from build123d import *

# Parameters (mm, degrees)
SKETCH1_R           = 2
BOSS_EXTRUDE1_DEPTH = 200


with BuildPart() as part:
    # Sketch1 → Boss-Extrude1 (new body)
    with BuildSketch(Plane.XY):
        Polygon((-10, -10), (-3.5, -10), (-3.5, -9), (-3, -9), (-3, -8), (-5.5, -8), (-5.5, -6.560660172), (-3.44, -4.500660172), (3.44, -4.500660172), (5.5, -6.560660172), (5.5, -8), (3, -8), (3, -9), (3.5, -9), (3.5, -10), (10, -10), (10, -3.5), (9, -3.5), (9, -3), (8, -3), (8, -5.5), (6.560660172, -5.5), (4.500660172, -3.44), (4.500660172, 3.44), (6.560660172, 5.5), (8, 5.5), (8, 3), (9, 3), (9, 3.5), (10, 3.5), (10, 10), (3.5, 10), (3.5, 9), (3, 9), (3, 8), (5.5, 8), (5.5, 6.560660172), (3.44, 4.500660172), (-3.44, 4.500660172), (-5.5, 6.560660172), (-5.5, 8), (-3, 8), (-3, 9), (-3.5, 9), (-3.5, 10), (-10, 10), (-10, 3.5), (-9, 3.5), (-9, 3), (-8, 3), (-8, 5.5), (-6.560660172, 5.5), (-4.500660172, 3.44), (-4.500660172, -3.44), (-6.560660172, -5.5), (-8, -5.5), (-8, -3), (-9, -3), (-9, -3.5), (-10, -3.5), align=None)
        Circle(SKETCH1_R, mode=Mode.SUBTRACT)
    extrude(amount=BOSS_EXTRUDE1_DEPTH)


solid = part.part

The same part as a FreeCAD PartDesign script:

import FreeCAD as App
import Part
import Sketcher
from FreeCAD import Vector

doc = App.newDocument("Part")
params = doc.addObject("Spreadsheet::Sheet", "Params")
for row, (alias, value) in enumerate([
    ("sketch1_diameter", "4 mm"),
    ("sketch1_width", "1 mm"),
    ("sketch1_width2", "6.5 mm"),
    ("sketch1_width3", "0.5 mm"),
    ("sketch1_width4", "2.5 mm"),
    ("pad1_length", "200 mm"),
], start=1):
    params.set(f"A{row}", alias)
    params.set(f"B{row}", "=" + value)
    params.setAlias(f"B{row}", alias)

body = doc.addObject("PartDesign::Body", "Body")

sketch1 = body.newObject("Sketcher::SketchObject", "Sketch")
sketch1.AttachmentSupport = (doc.getObject("XY_Plane"), [""])
sketch1.MapMode = "FlatFace"
sketch1.addGeometry([
    Part.LineSegment(Vector(-10, -10, 0), Vector(-3.5, -10, 0)),
    Part.LineSegment(Vector(-3.5, -10, 0), Vector(-3.5, -9, 0)),
    Part.LineSegment(Vector(-3.5, -9, 0), Vector(-3, -9, 0)),
    Part.LineSegment(Vector(-3, -9, 0), Vector(-3, -8, 0)),
    Part.LineSegment(Vector(-3, -8, 0), Vector(-5.5, -8, 0)),
    Part.LineSegment(Vector(-5.5, -8, 0), Vector(-5.5, -6.6, 0)),
    Part.LineSegment(Vector(-5.5, -6.6, 0), Vector(-3.4, -4.5, 0)),
    Part.LineSegment(Vector(-3.4, -4.5, 0), Vector(3.4, -4.5, 0)),
    Part.LineSegment(Vector(3.4, -4.5, 0), Vector(5.5, -6.6, 0)),
    Part.LineSegment(Vector(5.5, -6.6, 0), Vector(5.5, -8, 0)),
    Part.LineSegment(Vector(5.5, -8, 0), Vector(3, -8, 0)),
    Part.LineSegment(Vector(3, -8, 0), Vector(3, -9, 0)),
    Part.LineSegment(Vector(3, -9, 0), Vector(3.5, -9, 0)),
    Part.LineSegment(Vector(3.5, -9, 0), Vector(3.5, -10, 0)),
    Part.LineSegment(Vector(3.5, -10, 0), Vector(10, -10, 0)),
    Part.LineSegment(Vector(10, -10, 0), Vector(10, -3.5, 0)),
    Part.LineSegment(Vector(10, -3.5, 0), Vector(9, -3.5, 0)),
    Part.LineSegment(Vector(9, -3.5, 0), Vector(9, -3, 0)),
    Part.LineSegment(Vector(9, -3, 0), Vector(8, -3, 0)),
    Part.LineSegment(Vector(8, -3, 0), Vector(8, -5.5, 0)),
    Part.LineSegment(Vector(8, -5.5, 0), Vector(6.6, -5.5, 0)),
    Part.LineSegment(Vector(6.6, -5.5, 0), Vector(4.5, -3.4, 0)),
    Part.LineSegment(Vector(4.5, -3.4, 0), Vector(4.5, 3.4, 0)),
    Part.LineSegment(Vector(4.5, 3.4, 0), Vector(6.6, 5.5, 0)),
    Part.LineSegment(Vector(6.6, 5.5, 0), Vector(8, 5.5, 0)),
    Part.LineSegment(Vector(8, 5.5, 0), Vector(8, 3, 0)),
    Part.LineSegment(Vector(8, 3, 0), Vector(9, 3, 0)),
    Part.LineSegment(Vector(9, 3, 0), Vector(9, 3.5, 0)),
    Part.LineSegment(Vector(9, 3.5, 0), Vector(10, 3.5, 0)),
    Part.LineSegment(Vector(10, 3.5, 0), Vector(10, 10, 0)),
    Part.LineSegment(Vector(10, 10, 0), Vector(3.5, 10, 0)),
    Part.LineSegment(Vector(3.5, 10, 0), Vector(3.5, 9, 0)),
    Part.LineSegment(Vector(3.5, 9, 0), Vector(3, 9, 0)),
    Part.LineSegment(Vector(3, 9, 0), Vector(3, 8, 0)),
    Part.LineSegment(Vector(3, 8, 0), Vector(5.5, 8, 0)),
    Part.LineSegment(Vector(5.5, 8, 0), Vector(5.5, 6.6, 0)),
    Part.LineSegment(Vector(5.5, 6.6, 0), Vector(3.4, 4.5, 0)),
    Part.LineSegment(Vector(3.4, 4.5, 0), Vector(-3.4, 4.5, 0)),
    Part.LineSegment(Vector(-3.4, 4.5, 0), Vector(-5.5, 6.6, 0)),
    Part.LineSegment(Vector(-5.5, 6.6, 0), Vector(-5.5, 8, 0)),
    Part.LineSegment(Vector(-5.5, 8, 0), Vector(-3, 8, 0)),
    Part.LineSegment(Vector(-3, 8, 0), Vector(-3, 9, 0)),
    Part.LineSegment(Vector(-3, 9, 0), Vector(-3.5, 9, 0)),
    Part.LineSegment(Vector(-3.5, 9, 0), Vector(-3.5, 10, 0)),
    Part.LineSegment(Vector(-3.5, 10, 0), Vector(-10, 10, 0)),
    Part.LineSegment(Vector(-10, 10, 0), Vector(-10, 3.5, 0)),
    Part.LineSegment(Vector(-10, 3.5, 0), Vector(-9, 3.5, 0)),
    Part.LineSegment(Vector(-9, 3.5, 0), Vector(-9, 3, 0)),
    Part.LineSegment(Vector(-9, 3, 0), Vector(-8, 3, 0)),
    Part.LineSegment(Vector(-8, 3, 0), Vector(-8, 5.5, 0)),
    Part.LineSegment(Vector(-8, 5.5, 0), Vector(-6.6, 5.5, 0)),
    Part.LineSegment(Vector(-6.6, 5.5, 0), Vector(-4.5, 3.4, 0)),
    Part.LineSegment(Vector(-4.5, 3.4, 0), Vector(-4.5, -3.4, 0)),
    Part.LineSegment(Vector(-4.5, -3.4, 0), Vector(-6.6, -5.5, 0)),
    Part.LineSegment(Vector(-6.6, -5.5, 0), Vector(-8, -5.5, 0)),
    Part.LineSegment(Vector(-8, -5.5, 0), Vector(-8, -3, 0)),
    Part.LineSegment(Vector(-8, -3, 0), Vector(-9, -3, 0)),
    Part.LineSegment(Vector(-9, -3, 0), Vector(-9, -3.5, 0)),
    Part.LineSegment(Vector(-9, -3.5, 0), Vector(-10, -3.5, 0)),
    Part.LineSegment(Vector(-10, -3.5, 0), Vector(-10, -10, 0)),
    Part.Circle(Vector(0, 0, 0), Vector(0, 0, 1), 2),
], False)
sketch1.addConstraint([
    Sketcher.Constraint("Coincident", 0, 2, 1, 1),
    Sketcher.Constraint("Coincident", 1, 2, 2, 1),
    Sketcher.Constraint("Coincident", 2, 2, 3, 1),
    Sketcher.Constraint("Coincident", 3, 2, 4, 1),
    Sketcher.Constraint("Coincident", 4, 2, 5, 1),
    Sketcher.Constraint("Coincident", 5, 2, 6, 1),
    Sketcher.Constraint("Coincident", 6, 2, 7, 1),
    Sketcher.Constraint("Coincident", 7, 2, 8, 1),
    Sketcher.Constraint("Coincident", 8, 2, 9, 1),
    Sketcher.Constraint("Coincident", 9, 2, 10, 1),
    Sketcher.Constraint("Coincident", 10, 2, 11, 1),
    Sketcher.Constraint("Coincident", 11, 2, 12, 1),
    Sketcher.Constraint("Coincident", 12, 2, 13, 1),
    Sketcher.Constraint("Coincident", 13, 2, 14, 1),
    Sketcher.Constraint("Coincident", 14, 2, 15, 1),
    Sketcher.Constraint("Coincident", 15, 2, 16, 1),
    Sketcher.Constraint("Coincident", 16, 2, 17, 1),
    Sketcher.Constraint("Coincident", 17, 2, 18, 1),
    Sketcher.Constraint("Coincident", 18, 2, 19, 1),
    Sketcher.Constraint("Coincident", 19, 2, 20, 1),
    Sketcher.Constraint("Coincident", 20, 2, 21, 1),
    Sketcher.Constraint("Coincident", 21, 2, 22, 1),
    Sketcher.Constraint("Coincident", 22, 2, 23, 1),
    Sketcher.Constraint("Coincident", 23, 2, 24, 1),
    Sketcher.Constraint("Coincident", 24, 2, 25, 1),
    Sketcher.Constraint("Coincident", 25, 2, 26, 1),
    Sketcher.Constraint("Coincident", 26, 2, 27, 1),
    Sketcher.Constraint("Coincident", 27, 2, 28, 1),
    Sketcher.Constraint("Coincident", 28, 2, 29, 1),
    Sketcher.Constraint("Coincident", 29, 2, 30, 1),
    Sketcher.Constraint("Coincident", 30, 2, 31, 1),
    Sketcher.Constraint("Coincident", 31, 2, 32, 1),
    Sketcher.Constraint("Coincident", 32, 2, 33, 1),
    Sketcher.Constraint("Coincident", 33, 2, 34, 1),
    Sketcher.Constraint("Coincident", 34, 2, 35, 1),
    Sketcher.Constraint("Coincident", 35, 2, 36, 1),
    Sketcher.Constraint("Coincident", 36, 2, 37, 1),
    Sketcher.Constraint("Coincident", 37, 2, 38, 1),
    Sketcher.Constraint("Coincident", 38, 2, 39, 1),
    Sketcher.Constraint("Coincident", 39, 2, 40, 1),
    Sketcher.Constraint("Coincident", 40, 2, 41, 1),
    Sketcher.Constraint("Coincident", 41, 2, 42, 1),
    Sketcher.Constraint("Coincident", 42, 2, 43, 1),
    Sketcher.Constraint("Coincident", 43, 2, 44, 1),
    Sketcher.Constraint("Coincident", 44, 2, 45, 1),
    Sketcher.Constraint("Coincident", 45, 2, 46, 1),
    Sketcher.Constraint("Coincident", 46, 2, 47, 1),
    Sketcher.Constraint("Coincident", 47, 2, 48, 1),
    Sketcher.Constraint("Coincident", 48, 2, 49, 1),
    Sketcher.Constraint("Coincident", 49, 2, 50, 1),
    Sketcher.Constraint("Coincident", 50, 2, 51, 1),
    Sketcher.Constraint("Coincident", 51, 2, 52, 1),
    Sketcher.Constraint("Coincident", 52, 2, 53, 1),
    Sketcher.Constraint("Coincident", 53, 2, 54, 1),
    Sketcher.Constraint("Coincident", 54, 2, 55, 1),
    Sketcher.Constraint("Coincident", 55, 2, 56, 1),
    Sketcher.Constraint("Coincident", 56, 2, 57, 1),
    Sketcher.Constraint("Coincident", 57, 2, 58, 1),
    Sketcher.Constraint("Coincident", 58, 2, 59, 1),
    Sketcher.Constraint("Coincident", 59, 2, 0, 1),
    Sketcher.Constraint("Horizontal", 0),
    Sketcher.Constraint("Vertical", 1),
    Sketcher.Constraint("Horizontal", 2),
    Sketcher.Constraint("Vertical", 3),
    Sketcher.Constraint("Horizontal", 4),
    Sketcher.Constraint("Vertical", 5),
    Sketcher.Constraint("Horizontal", 7),
    Sketcher.Constraint("Vertical", 9),
    Sketcher.Constraint("Horizontal", 10),
    Sketcher.Constraint("Vertical", 11),
    Sketcher.Constraint("Horizontal", 12),
    Sketcher.Constraint("Vertical", 13),
    Sketcher.Constraint("Horizontal", 14),
    Sketcher.Constraint("Vertical", 15),
    Sketcher.Constraint("Horizontal", 16),
    Sketcher.Constraint("Vertical", 17),
    Sketcher.Constraint("Horizontal", 18),
    Sketcher.Constraint("Vertical", 19),
    Sketcher.Constraint("Horizontal", 20),
    Sketcher.Constraint("Vertical", 22),
    Sketcher.Constraint("Horizontal", 24),
    Sketcher.Constraint("Vertical", 25),
    Sketcher.Constraint("Horizontal", 26),
    Sketcher.Constraint("Vertical", 27),
    Sketcher.Constraint("Horizontal", 28),
    Sketcher.Constraint("Vertical", 29),
    Sketcher.Constraint("Horizontal", 30),
    Sketcher.Constraint("Vertical", 31),
    Sketcher.Constraint("Horizontal", 32),
    Sketcher.Constraint("Vertical", 33),
    Sketcher.Constraint("Horizontal", 34),
    Sketcher.Constraint("Vertical", 35),
    Sketcher.Constraint("Horizontal", 37),
    Sketcher.Constraint("Vertical", 39),
    Sketcher.Constraint("Horizontal", 40),
    Sketcher.Constraint("Vertical", 41),
    Sketcher.Constraint("Horizontal", 42),
    Sketcher.Constraint("Vertical", 43),
    Sketcher.Constraint("Horizontal", 44),
    Sketcher.Constraint("Vertical", 45),
    Sketcher.Constraint("Horizontal", 46),
    Sketcher.Constraint("Vertical", 47),
    Sketcher.Constraint("Horizontal", 48),
    Sketcher.Constraint("Vertical", 49),
    Sketcher.Constraint("Horizontal", 50),
    Sketcher.Constraint("Vertical", 52),
    Sketcher.Constraint("Horizontal", 54),
    Sketcher.Constraint("Vertical", 55),
    Sketcher.Constraint("Horizontal", 56),
    Sketcher.Constraint("Vertical", 57),
    Sketcher.Constraint("Horizontal", 58),
    Sketcher.Constraint("Vertical", 59),
    Sketcher.Constraint("Coincident", 60, 3, -1, 1),
    Sketcher.Constraint("Symmetric", 0, 2, 30, 2, -1, 1),
    Sketcher.Constraint("Symmetric", 2, 2, 32, 2, -1, 1),
    Sketcher.Constraint("Symmetric", 4, 2, 34, 2, -1, 1),
    Sketcher.Constraint("Symmetric", 6, 2, 36, 2, -1, 1),
    Sketcher.Constraint("Symmetric", 8, 2, 38, 2, -1, 1),
    Sketcher.Constraint("Symmetric", 10, 2, 40, 2, -1, 1),
    Sketcher.Constraint("Symmetric", 12, 2, 42, 2, -1, 1),
    Sketcher.Constraint("Symmetric", 14, 2, 44, 2, -1, 1),
    Sketcher.Constraint("Symmetric", 16, 2, 46, 2, -1, 1),
    Sketcher.Constraint("Symmetric", 18, 2, 48, 2, -1, 1),
    Sketcher.Constraint("Symmetric", 20, 2, 50, 2, -1, 1),
    Sketcher.Constraint("Symmetric", 21, 2, 51, 2, -1, 1),
    Sketcher.Constraint("Symmetric", 23, 2, 53, 2, -1, 1),
    Sketcher.Constraint("Symmetric", 25, 2, 55, 2, -1, 1),
    Sketcher.Constraint("Symmetric", 27, 2, 57, 2, -1, 1),
    Sketcher.Constraint("Symmetric", 5, 2, 8, 2, -2),
    Sketcher.Constraint("Symmetric", 3, 2, 10, 2, -2),
    Sketcher.Constraint("Symmetric", 1, 2, 12, 2, -2),
    Sketcher.Constraint("Symmetric", 29, 2, 44, 2, -2),
    Sketcher.Constraint("Symmetric", 27, 2, 46, 2, -2),
    Sketcher.Constraint("Symmetric", 25, 2, 48, 2, -2),
    Sketcher.Constraint("Symmetric", 23, 2, 50, 2, -2),
    Sketcher.Constraint("Perpendicular", 6, 8),
    Sketcher.Constraint("Parallel", 8, 21),
    Sketcher.Constraint("Perpendicular", 21, 23),
    Sketcher.Constraint("Parallel", 23, 36),
    Sketcher.Constraint("Perpendicular", 36, 38),
    Sketcher.Constraint("Perpendicular", 51, 53),
    Sketcher.Constraint("Horizontal", 22, 2, 51, 2),
    Sketcher.Constraint("Vertical", 45, 2, 58, 2),
    Sketcher.Constraint("Equal", 16, 18),
    Sketcher.Constraint("Equal", 58, 1),
    Sketcher.Constraint("Equal", 1, 3),
    Sketcher.Constraint("Equal", 54, 5),
    Sketcher.Constraint("Equal", 44, 15),
    Sketcher.Constraint("Equal", 42, 17),
    Sketcher.Constraint("Equal", 40, 19),
    Sketcher.Constraint("Equal", 37, 22),
    Sketcher.Constraint("Equal", 8, 21),
    Sketcher.Constraint("Diameter", 60, 4.0),
    Sketcher.Constraint("DistanceX", 16, 2, 16, 1, 1.0),
    Sketcher.Constraint("DistanceX", 0, 1, 0, 2, 6.5),
    Sketcher.Constraint("DistanceX", 2, 1, 2, 2, 0.5),
    Sketcher.Constraint("DistanceX", 4, 2, 4, 1, 2.5),
    Sketcher.Constraint("DistanceY", 0, 2, -1, 1, 10.0),
    Sketcher.Constraint("DistanceX", 7, 1, 7, 2, 6.88),
    Sketcher.Constraint("DistanceX", 20, 2, 20, 1, 1.43934),
])
sketch1.setExpression("Constraints[152]", "Params.sketch1_diameter")
sketch1.setExpression("Constraints[153]", "Params.sketch1_width")
sketch1.setExpression("Constraints[154]", "Params.sketch1_width2")
sketch1.setExpression("Constraints[155]", "Params.sketch1_width3")
sketch1.setExpression("Constraints[156]", "Params.sketch1_width4")
pad1 = body.newObject("PartDesign::Pad", "Pad")
pad1.Profile = sketch1
pad1.setExpression("Length", "Params.pad1_length")

doc.recompute()
